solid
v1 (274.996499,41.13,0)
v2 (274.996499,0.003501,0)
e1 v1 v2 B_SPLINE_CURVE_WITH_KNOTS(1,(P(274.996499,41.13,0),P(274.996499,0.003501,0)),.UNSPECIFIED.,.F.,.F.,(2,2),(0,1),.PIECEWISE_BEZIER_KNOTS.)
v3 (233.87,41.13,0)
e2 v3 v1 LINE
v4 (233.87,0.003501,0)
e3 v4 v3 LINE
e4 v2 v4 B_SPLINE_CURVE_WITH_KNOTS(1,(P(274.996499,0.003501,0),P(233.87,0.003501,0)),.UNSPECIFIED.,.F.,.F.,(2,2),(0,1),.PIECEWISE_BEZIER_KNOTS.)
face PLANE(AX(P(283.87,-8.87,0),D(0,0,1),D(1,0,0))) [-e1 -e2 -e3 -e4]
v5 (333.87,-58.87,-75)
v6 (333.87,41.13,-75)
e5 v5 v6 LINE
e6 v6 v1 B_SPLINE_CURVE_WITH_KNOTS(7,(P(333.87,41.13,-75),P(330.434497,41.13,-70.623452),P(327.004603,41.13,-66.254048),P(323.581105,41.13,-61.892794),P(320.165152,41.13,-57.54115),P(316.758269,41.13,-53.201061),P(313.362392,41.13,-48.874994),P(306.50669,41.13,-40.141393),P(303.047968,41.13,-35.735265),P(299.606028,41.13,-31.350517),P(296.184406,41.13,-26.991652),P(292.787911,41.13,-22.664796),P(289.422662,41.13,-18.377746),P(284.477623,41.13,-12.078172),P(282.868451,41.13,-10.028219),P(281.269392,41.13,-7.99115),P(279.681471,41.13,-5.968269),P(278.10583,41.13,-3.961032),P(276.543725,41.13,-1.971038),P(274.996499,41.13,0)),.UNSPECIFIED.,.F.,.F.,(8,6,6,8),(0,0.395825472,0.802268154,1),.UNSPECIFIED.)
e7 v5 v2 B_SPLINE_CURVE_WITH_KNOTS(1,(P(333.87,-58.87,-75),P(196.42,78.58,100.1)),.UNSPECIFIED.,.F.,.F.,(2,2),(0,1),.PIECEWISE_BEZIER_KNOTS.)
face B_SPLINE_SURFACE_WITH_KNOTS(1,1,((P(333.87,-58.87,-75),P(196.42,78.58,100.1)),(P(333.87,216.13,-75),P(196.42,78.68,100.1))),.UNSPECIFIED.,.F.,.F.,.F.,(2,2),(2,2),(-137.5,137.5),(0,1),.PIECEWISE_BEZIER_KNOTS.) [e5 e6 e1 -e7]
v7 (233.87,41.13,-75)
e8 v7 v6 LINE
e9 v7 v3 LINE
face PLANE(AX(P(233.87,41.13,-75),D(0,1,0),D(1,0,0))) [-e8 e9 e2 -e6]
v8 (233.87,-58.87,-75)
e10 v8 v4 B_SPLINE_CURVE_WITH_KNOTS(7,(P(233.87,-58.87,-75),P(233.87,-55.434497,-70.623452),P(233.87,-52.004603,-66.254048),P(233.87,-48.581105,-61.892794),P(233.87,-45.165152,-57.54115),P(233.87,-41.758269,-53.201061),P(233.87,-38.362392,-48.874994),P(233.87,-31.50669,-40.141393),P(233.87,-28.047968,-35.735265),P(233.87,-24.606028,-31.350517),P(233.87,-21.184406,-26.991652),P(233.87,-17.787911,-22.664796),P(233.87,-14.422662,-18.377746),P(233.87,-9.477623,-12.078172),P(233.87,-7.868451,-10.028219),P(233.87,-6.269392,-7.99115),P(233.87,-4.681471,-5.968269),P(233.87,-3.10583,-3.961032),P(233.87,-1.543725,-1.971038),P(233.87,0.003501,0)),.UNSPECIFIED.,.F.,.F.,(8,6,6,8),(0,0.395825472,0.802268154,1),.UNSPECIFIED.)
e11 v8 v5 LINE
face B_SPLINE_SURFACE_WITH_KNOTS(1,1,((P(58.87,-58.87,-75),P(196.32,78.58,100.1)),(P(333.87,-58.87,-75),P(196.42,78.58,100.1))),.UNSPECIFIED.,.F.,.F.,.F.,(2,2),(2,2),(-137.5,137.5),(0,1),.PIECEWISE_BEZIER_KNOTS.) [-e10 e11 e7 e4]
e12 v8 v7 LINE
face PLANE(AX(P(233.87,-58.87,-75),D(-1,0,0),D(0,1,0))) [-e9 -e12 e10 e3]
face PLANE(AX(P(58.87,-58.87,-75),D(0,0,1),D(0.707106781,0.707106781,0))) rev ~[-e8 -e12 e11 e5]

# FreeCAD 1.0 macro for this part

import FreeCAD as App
import Part
import Sketcher


def add_polygon(sketch, points):
    """Adds a closed chain of lines whose ends are joined by coincident constraints."""
    first, n = sketch.GeometryCount, len(points)
    for a, b in zip(points, points[1:] + points[:1]):
        sketch.addGeometry(Part.LineSegment(App.Vector(*a, 0), App.Vector(*b, 0)), False)
    for i in range(n):
        sketch.addConstraint(Sketcher.Constraint("Coincident", first + i, 2, first + (i + 1) % n, 1))

doc = App.newDocument("Part")
body = doc.addObject("PartDesign::Body", "Body")

sketch1 = body.newObject("Sketcher::SketchObject", "Sketch")
sketch1.AttachmentSupport = (doc.getObject("XY_Plane"), [""])
sketch1.MapMode = "FlatFace"
add_polygon(sketch1, [(175, 100), (175, 0), (275, 0), (275, 100)])
sketch1.addConstraint(Sketcher.Constraint("Vertical", 0))
sketch1.addConstraint(Sketcher.Constraint("Horizontal", 1))
sketch1.addConstraint(Sketcher.Constraint("Vertical", 2))
sketch1.addConstraint(Sketcher.Constraint("Horizontal", 3))
sketch1.addConstraint(Sketcher.Constraint("PointOnObject", 0, 2, -1))
sketch1.addConstraint(Sketcher.Constraint("Equal", 3, 0))
sketch1.addConstraint(Sketcher.Constraint("DistanceX", 1, 1, 1, 2, 100.0))
sketch1.addConstraint(Sketcher.Constraint("DistanceX", -1, 1, 0, 2, 175.0))
pad1 = body.newObject("PartDesign::Pad", "Pad")
pad1.Profile = sketch1
pad1.Length = 75
body2 = doc.addObject("PartDesign::Body", "Body001")

sketch2 = body2.newObject("Sketcher::SketchObject", "Sketch001")
sketch2.AttachmentSupport = (doc.getObject("XY_Plane001"), [""])
sketch2.MapMode = "FlatFace"
add_polygon(sketch2, [(0, 275), (0, 0), (275, 0), (275, 275)])
sketch2.addConstraint(Sketcher.Constraint("Vertical", 0))
sketch2.addConstraint(Sketcher.Constraint("Horizontal", 1))
sketch2.addConstraint(Sketcher.Constraint("Vertical", 2))
sketch2.addConstraint(Sketcher.Constraint("Horizontal", 3))
sketch2.addConstraint(Sketcher.Constraint("Coincident", 0, 2, -1, 1))
sketch2.addConstraint(Sketcher.Constraint("Equal", 3, 0))
sketch2.addConstraint(Sketcher.Constraint("DistanceX", 1, 1, 1, 2, 275.0))

sketch3 = body2.newObject("Sketcher::SketchObject", "Sketch002")
sketch3.AttachmentSupport = (doc.getObject("XY_Plane001"), [""])
sketch3.MapMode = "FlatFace"
sketch3.AttachmentOffset = App.Placement(App.Vector(0, 0, 175.1), App.Rotation())
add_polygon(sketch3, [(137.45, 137.55), (137.45, 137.45), (137.55, 137.45), (137.55, 137.55)])
sketch3.addConstraint(Sketcher.Constraint("Vertical", 0))
sketch3.addConstraint(Sketcher.Constraint("Horizontal", 1))
sketch3.addConstraint(Sketcher.Constraint("Vertical", 2))
sketch3.addConstraint(Sketcher.Constraint("Horizontal", 3))
sketch3.addConstraint(Sketcher.Constraint("Equal", 3, 0))
sketch3.addConstraint(Sketcher.Constraint("DistanceX", 1, 1, 1, 2, 0.1))
sketch3.addConstraint(Sketcher.Constraint("DistanceX", -1, 1, 0, 2, 137.45))
sketch3.addConstraint(Sketcher.Constraint("DistanceY", -1, 1, 0, 2, 137.45))

additiveloft = body2.newObject("PartDesign::AdditiveLoft", "AdditiveLoft")
additiveloft.Profile = sketch2
additiveloft.Sections = [sketch3]
doc.recompute()

boolean = body2.newObject("PartDesign::Boolean", "Boolean")
boolean.Type = "Common"
boolean.addObjects([body])
body3 = doc.addObject("PartDesign::Body", "Body002")
doc.recompute()

body2.Placement = App.Placement(App.Vector(58.87, -58.87, -75), App.Rotation(App.Vector(0, 0, 1), 0))
boolean2 = body3.newObject("PartDesign::Boolean", "Boolean001")
boolean2.Type = "Fuse"
boolean2.addObjects([body2])

doc.recompute()
